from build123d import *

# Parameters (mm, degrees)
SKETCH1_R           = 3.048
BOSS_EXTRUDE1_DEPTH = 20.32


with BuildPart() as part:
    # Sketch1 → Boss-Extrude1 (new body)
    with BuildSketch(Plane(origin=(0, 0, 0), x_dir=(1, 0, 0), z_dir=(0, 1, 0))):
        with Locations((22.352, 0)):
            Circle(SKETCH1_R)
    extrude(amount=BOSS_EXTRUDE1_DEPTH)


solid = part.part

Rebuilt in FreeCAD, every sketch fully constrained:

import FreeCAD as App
import Part
import Sketcher
from FreeCAD import Vector
Q = App.Units.Quantity

doc = App.newDocument("Part")
params = doc.addObject("Spreadsheet::Sheet", "Params")
for row, (alias, value) in enumerate([
    ("sketch1_diameter", "0.24 in"),
    ("pad1_length", "0.8 in"),
], start=1):
    params.set(f"A{row}", alias)
    params.set(f"B{row}", "=" + value)
    params.setAlias(f"B{row}", alias)

body = doc.addObject("PartDesign::Body", "Body")

# Sketch on XZ plane
sketch1 = body.newObject("Sketcher::SketchObject", "Sketch")
sketch1.AttachmentSupport = (doc.getObject("XZ_Plane"), [""])
sketch1.MapMode = "FlatFace"
sketch1.addGeometry(Part.Circle(Vector(22.4, 0, 0), Vector(0, 0, 1), 3), False)
sketch1.addConstraint([
    Sketcher.Constraint("PointOnObject", 0, 3, -1),
    Sketcher.Constraint("Diameter", 0, Q("0.24 in")),
    Sketcher.Constraint("DistanceX", -1, 1, 0, 3, Q("0.88 in")),
])
sketch1.setExpression("Constraints[1]", "Params.sketch1_diameter")
pad1 = body.newObject("PartDesign::Pad", "Pad")
pad1.Profile = sketch1
pad1.setExpression("Length", "Params.pad1_length")
pad1.Reversed = True

doc.recompute()
